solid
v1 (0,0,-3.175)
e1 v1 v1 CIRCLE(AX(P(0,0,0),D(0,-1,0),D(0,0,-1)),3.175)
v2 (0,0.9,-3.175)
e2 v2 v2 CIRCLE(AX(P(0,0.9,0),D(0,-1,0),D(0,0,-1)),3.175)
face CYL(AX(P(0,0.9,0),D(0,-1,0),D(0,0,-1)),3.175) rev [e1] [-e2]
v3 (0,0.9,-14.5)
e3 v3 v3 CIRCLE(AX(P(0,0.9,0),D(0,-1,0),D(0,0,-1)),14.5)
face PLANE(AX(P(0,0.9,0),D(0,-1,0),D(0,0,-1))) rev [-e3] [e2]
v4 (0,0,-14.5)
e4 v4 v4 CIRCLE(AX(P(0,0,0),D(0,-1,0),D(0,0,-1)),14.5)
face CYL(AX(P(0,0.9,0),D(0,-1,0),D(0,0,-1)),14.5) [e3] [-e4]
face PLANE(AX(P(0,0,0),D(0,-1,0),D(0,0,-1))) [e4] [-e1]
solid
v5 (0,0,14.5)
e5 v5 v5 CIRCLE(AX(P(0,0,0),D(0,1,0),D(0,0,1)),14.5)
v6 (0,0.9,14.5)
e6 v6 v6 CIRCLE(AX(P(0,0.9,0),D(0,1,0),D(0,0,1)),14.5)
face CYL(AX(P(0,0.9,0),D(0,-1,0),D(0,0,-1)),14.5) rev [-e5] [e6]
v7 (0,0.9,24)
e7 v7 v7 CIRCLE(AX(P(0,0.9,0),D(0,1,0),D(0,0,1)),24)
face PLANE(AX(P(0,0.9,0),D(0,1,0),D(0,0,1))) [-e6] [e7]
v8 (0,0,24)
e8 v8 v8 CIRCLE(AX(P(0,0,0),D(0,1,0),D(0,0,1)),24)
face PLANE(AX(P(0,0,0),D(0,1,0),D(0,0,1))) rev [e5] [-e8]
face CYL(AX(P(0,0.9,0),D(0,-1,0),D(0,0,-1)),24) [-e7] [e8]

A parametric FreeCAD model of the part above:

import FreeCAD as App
import Part
import Sketcher
Q = App.Units.Quantity

doc = App.newDocument("Part")
params = doc.addObject("Spreadsheet::Sheet", "Params")
for row, (alias, value) in enumerate([
    ("sketch1_diameter", "48 mm"),
    ("sketch1_diameter2", "29 mm"),
    ("pad1_length", "0.9 mm"),
    ("sketch2_diameter", "29 mm"),
    ("sketch2_diameter2", "6.35 mm"),
    ("pad2_length", "0.9 mm"),
], start=1):
    params.set(f"A{row}", alias)
    params.set(f"B{row}", "=" + value)
    params.setAlias(f"B{row}", alias)

body = doc.addObject("PartDesign::Body", "Body")

sketch1 = body.newObject("Sketcher::SketchObject", "Sketch")
sketch1.AttachmentSupport = (doc.getObject("XZ_Plane"), [""])
sketch1.MapMode = "FlatFace"
sketch1.addGeometry(Part.Circle(App.Vector(0, 0, 0), App.Vector(0, 0, 1), 24), False)
sketch1.addGeometry(Part.Circle(App.Vector(0, 0, 0), App.Vector(0, 0, 1), 14.5), False)
sketch1.addConstraint(Sketcher.Constraint("Coincident", 0, 3, -1, 1))
sketch1.addConstraint(Sketcher.Constraint("Coincident", 1, 3, -1, 1))
sketch1.addConstraint(Sketcher.Constraint("Diameter", 0, Q("48 mm")))
sketch1.addConstraint(Sketcher.Constraint("Diameter", 1, Q("29 mm")))
sketch1.setExpression("Constraints[2]", "Params.sketch1_diameter")
sketch1.setExpression("Constraints[3]", "Params.sketch1_diameter2")
pad1 = body.newObject("PartDesign::Pad", "Pad")
pad1.Profile = sketch1
pad1.setExpression("Length", "Params.pad1_length")
pad1.Reversed = True
body2 = doc.addObject("PartDesign::Body", "Body001")

sketch2 = body2.newObject("Sketcher::SketchObject", "Sketch001")
sketch2.AttachmentSupport = (doc.getObject("XZ_Plane001"), [""])
sketch2.MapMode = "FlatFace"
sketch2.addGeometry(Part.Circle(App.Vector(0, 0, 0), App.Vector(0, 0, 1), 14.5), False)
sketch2.addGeometry(Part.Circle(App.Vector(0, 0, 0), App.Vector(0, 0, 1), 3.175), False)
sketch2.addConstraint(Sketcher.Constraint("Coincident", 0, 3, -1, 1))
sketch2.addConstraint(Sketcher.Constraint("Coincident", 1, 3, -1, 1))
sketch2.addConstraint(Sketcher.Constraint("Diameter", 0, Q("29 mm")))
sketch2.addConstraint(Sketcher.Constraint("Diameter", 1, Q("6.35 mm")))
sketch2.setExpression("Constraints[2]", "Params.sketch2_diameter")
sketch2.setExpression("Constraints[3]", "Params.sketch2_diameter2")
pad2 = body2.newObject("PartDesign::Pad", "Pad001")
pad2.Profile = sketch2
pad2.setExpression("Length", "Params.pad2_length")
pad2.Reversed = True

doc.recompute()
